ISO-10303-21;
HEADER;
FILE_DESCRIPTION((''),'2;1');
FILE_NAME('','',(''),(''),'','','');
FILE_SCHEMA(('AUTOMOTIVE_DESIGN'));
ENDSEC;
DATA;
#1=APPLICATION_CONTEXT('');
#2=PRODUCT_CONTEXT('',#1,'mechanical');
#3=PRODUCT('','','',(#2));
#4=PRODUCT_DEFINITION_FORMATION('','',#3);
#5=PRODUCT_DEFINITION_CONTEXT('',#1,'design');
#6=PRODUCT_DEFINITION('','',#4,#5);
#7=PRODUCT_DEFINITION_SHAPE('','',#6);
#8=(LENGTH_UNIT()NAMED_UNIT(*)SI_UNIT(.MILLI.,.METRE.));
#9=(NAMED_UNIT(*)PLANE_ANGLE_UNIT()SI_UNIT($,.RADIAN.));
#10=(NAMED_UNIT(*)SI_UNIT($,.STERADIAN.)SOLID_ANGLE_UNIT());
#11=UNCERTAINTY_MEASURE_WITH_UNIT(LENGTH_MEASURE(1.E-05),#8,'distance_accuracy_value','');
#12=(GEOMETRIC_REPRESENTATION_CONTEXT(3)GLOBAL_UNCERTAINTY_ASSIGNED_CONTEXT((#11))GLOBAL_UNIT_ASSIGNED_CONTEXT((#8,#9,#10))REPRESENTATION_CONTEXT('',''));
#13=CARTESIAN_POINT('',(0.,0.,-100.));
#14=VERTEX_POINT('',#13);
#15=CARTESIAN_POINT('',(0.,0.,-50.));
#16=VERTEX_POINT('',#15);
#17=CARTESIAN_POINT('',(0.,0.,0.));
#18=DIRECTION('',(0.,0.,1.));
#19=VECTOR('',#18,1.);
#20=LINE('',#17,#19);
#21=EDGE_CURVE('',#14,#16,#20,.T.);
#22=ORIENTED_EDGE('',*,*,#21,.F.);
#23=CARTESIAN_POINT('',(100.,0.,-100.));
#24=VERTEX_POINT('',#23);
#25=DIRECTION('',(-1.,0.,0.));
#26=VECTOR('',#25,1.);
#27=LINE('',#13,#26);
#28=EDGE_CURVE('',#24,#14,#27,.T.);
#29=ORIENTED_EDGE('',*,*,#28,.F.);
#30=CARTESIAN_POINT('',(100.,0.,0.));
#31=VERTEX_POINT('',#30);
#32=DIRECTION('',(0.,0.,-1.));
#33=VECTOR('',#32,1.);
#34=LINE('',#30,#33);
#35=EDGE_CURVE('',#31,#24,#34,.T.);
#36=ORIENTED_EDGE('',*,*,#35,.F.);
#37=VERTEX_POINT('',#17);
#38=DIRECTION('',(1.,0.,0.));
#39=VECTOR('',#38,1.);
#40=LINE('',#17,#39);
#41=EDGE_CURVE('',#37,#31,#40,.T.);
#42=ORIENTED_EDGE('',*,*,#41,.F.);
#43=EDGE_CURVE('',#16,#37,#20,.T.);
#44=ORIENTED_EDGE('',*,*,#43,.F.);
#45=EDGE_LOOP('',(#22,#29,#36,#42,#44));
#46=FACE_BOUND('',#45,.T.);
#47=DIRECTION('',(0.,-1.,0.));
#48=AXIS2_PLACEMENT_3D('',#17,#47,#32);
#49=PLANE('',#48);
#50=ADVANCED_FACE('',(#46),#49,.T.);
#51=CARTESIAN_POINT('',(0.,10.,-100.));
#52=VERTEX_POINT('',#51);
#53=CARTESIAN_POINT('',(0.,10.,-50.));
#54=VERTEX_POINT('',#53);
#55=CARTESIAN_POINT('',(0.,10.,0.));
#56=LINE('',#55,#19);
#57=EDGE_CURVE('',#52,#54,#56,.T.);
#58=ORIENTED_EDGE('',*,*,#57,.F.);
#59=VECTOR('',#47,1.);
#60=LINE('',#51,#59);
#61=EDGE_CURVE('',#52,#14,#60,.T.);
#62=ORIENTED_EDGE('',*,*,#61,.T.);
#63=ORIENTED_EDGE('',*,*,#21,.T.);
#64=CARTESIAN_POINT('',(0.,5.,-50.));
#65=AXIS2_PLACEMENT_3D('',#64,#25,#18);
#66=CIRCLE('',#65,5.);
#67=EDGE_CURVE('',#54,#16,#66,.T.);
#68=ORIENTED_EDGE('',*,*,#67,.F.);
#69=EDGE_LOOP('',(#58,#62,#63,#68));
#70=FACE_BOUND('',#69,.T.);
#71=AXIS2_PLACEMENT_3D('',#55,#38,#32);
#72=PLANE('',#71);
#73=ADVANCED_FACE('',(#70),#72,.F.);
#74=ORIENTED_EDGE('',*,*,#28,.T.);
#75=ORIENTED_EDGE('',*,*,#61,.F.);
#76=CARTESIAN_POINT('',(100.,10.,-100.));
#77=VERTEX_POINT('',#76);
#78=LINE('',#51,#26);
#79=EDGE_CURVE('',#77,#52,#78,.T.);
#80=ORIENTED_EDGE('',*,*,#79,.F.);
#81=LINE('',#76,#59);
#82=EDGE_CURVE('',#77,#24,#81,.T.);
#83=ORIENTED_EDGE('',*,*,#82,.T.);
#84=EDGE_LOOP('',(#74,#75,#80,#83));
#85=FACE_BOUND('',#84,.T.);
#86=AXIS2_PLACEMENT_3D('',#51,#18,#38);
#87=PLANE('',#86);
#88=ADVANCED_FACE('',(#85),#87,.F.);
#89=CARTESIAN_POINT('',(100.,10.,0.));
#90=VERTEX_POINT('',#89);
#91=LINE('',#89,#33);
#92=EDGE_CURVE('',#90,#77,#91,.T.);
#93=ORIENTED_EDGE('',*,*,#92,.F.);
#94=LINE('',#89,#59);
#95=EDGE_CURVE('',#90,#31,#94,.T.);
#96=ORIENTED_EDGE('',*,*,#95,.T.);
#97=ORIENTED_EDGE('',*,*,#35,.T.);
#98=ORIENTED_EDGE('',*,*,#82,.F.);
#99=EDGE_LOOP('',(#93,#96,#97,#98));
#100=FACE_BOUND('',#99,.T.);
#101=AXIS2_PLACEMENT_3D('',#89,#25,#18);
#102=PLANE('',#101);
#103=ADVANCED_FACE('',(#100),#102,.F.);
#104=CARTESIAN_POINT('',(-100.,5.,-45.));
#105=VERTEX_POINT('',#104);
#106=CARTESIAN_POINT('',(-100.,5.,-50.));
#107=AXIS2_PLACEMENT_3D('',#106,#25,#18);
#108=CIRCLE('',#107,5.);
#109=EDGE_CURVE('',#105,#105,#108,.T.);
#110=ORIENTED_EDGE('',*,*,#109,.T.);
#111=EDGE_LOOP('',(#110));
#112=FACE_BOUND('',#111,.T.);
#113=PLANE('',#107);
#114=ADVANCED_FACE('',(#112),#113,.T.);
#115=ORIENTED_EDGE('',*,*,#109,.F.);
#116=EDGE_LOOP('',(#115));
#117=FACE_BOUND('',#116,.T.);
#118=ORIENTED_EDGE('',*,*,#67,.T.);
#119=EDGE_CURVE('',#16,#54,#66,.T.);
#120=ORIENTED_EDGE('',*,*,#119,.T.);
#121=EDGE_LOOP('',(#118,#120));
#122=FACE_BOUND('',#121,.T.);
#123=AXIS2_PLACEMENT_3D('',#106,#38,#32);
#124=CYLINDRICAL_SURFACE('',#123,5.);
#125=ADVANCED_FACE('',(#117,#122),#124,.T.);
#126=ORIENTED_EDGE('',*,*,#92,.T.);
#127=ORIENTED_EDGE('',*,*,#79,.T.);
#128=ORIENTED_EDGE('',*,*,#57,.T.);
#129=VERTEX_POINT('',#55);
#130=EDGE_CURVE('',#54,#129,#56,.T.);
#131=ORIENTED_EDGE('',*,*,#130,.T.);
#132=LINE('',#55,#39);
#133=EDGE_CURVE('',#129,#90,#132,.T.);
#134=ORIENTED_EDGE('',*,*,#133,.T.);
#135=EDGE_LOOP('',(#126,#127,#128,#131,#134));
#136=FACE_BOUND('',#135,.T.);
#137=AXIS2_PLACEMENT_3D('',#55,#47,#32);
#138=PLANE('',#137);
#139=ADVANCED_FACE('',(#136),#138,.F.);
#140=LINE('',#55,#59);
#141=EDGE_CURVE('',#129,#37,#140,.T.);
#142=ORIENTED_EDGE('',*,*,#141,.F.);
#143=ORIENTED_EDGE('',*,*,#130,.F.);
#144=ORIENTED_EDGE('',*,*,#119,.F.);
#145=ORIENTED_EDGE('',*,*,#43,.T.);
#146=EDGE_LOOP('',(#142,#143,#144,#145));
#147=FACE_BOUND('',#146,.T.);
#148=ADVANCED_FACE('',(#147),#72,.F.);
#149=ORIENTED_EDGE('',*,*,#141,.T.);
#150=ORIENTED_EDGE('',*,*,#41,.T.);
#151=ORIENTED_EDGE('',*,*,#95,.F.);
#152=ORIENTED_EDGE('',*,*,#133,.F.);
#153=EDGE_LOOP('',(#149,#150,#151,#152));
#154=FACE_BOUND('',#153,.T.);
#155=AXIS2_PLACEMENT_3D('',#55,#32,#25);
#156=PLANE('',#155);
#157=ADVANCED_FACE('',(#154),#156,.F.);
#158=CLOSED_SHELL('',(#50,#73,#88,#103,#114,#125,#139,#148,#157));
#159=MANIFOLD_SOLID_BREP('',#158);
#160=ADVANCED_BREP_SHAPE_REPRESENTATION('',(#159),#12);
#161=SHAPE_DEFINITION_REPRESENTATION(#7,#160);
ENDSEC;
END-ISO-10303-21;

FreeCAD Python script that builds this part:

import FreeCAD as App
import Part
import Sketcher

V = App.Vector

doc = App.newDocument("Part")
body = doc.addObject("PartDesign::Body", "Body")

# Sketch on XZ plane
sketch1 = body.newObject("Sketcher::SketchObject", "Sketch")
sketch1.AttachmentSupport = (doc.getObject("XZ_Plane"), [""])
sketch1.MapMode = "FlatFace"
sketch1.addGeometry(Part.LineSegment(V(0, -100, 0), V(0, 0, 0)), False)
sketch1.addGeometry(Part.LineSegment(V(0, 0, 0), V(100, 0, 0)), False)
sketch1.addGeometry(Part.LineSegment(V(100, 0, 0), V(100, -100, 0)), False)
sketch1.addGeometry(Part.LineSegment(V(100, -100, 0), V(0, -100, 0)), False)
sketch1.addConstraint(Sketcher.Constraint("Coincident", 0, 2, 1, 1))
sketch1.addConstraint(Sketcher.Constraint("Coincident", 1, 2, 2, 1))
sketch1.addConstraint(Sketcher.Constraint("Coincident", 2, 2, 3, 1))
sketch1.addConstraint(Sketcher.Constraint("Coincident", 3, 2, 0, 1))
sketch1.addConstraint(Sketcher.Constraint("Vertical", 0))
sketch1.addConstraint(Sketcher.Constraint("Horizontal", 1))
sketch1.addConstraint(Sketcher.Constraint("Vertical", 2))
sketch1.addConstraint(Sketcher.Constraint("Horizontal", 3))
sketch1.addConstraint(Sketcher.Constraint("Coincident", 0, 2, -1, 1))
sketch1.addConstraint(Sketcher.Constraint("Equal", 3, 0))
sketch1.addConstraint(Sketcher.Constraint("DistanceX", 1, 1, 1, 2, 100.0))
pad1 = body.newObject("PartDesign::Pad", "Pad")
pad1.Profile = sketch1
pad1.Length = 10
pad1.Reversed = True

# Sketch on YZ plane
sketch2 = body.newObject("Sketcher::SketchObject", "Sketch001")
sketch2.AttachmentSupport = (doc.getObject("YZ_Plane"), [""])
sketch2.MapMode = "FlatFace"
sketch2.addGeometry(Part.Circle(V(5, -50, 0), V(0, 0, 1), 5), False)
sketch2.addConstraint(Sketcher.Constraint("Diameter", 0, 10.0))
sketch2.addConstraint(Sketcher.Constraint("DistanceX", -1, 1, 0, 3, 5.0))
sketch2.addConstraint(Sketcher.Constraint("DistanceY", 0, 3, -1, 1, 50.0))
pad2 = body.newObject("PartDesign::Pad", "Pad001")
pad2.Profile = sketch2
pad2.Length = 100
pad2.Reversed = True

doc.recompute()
